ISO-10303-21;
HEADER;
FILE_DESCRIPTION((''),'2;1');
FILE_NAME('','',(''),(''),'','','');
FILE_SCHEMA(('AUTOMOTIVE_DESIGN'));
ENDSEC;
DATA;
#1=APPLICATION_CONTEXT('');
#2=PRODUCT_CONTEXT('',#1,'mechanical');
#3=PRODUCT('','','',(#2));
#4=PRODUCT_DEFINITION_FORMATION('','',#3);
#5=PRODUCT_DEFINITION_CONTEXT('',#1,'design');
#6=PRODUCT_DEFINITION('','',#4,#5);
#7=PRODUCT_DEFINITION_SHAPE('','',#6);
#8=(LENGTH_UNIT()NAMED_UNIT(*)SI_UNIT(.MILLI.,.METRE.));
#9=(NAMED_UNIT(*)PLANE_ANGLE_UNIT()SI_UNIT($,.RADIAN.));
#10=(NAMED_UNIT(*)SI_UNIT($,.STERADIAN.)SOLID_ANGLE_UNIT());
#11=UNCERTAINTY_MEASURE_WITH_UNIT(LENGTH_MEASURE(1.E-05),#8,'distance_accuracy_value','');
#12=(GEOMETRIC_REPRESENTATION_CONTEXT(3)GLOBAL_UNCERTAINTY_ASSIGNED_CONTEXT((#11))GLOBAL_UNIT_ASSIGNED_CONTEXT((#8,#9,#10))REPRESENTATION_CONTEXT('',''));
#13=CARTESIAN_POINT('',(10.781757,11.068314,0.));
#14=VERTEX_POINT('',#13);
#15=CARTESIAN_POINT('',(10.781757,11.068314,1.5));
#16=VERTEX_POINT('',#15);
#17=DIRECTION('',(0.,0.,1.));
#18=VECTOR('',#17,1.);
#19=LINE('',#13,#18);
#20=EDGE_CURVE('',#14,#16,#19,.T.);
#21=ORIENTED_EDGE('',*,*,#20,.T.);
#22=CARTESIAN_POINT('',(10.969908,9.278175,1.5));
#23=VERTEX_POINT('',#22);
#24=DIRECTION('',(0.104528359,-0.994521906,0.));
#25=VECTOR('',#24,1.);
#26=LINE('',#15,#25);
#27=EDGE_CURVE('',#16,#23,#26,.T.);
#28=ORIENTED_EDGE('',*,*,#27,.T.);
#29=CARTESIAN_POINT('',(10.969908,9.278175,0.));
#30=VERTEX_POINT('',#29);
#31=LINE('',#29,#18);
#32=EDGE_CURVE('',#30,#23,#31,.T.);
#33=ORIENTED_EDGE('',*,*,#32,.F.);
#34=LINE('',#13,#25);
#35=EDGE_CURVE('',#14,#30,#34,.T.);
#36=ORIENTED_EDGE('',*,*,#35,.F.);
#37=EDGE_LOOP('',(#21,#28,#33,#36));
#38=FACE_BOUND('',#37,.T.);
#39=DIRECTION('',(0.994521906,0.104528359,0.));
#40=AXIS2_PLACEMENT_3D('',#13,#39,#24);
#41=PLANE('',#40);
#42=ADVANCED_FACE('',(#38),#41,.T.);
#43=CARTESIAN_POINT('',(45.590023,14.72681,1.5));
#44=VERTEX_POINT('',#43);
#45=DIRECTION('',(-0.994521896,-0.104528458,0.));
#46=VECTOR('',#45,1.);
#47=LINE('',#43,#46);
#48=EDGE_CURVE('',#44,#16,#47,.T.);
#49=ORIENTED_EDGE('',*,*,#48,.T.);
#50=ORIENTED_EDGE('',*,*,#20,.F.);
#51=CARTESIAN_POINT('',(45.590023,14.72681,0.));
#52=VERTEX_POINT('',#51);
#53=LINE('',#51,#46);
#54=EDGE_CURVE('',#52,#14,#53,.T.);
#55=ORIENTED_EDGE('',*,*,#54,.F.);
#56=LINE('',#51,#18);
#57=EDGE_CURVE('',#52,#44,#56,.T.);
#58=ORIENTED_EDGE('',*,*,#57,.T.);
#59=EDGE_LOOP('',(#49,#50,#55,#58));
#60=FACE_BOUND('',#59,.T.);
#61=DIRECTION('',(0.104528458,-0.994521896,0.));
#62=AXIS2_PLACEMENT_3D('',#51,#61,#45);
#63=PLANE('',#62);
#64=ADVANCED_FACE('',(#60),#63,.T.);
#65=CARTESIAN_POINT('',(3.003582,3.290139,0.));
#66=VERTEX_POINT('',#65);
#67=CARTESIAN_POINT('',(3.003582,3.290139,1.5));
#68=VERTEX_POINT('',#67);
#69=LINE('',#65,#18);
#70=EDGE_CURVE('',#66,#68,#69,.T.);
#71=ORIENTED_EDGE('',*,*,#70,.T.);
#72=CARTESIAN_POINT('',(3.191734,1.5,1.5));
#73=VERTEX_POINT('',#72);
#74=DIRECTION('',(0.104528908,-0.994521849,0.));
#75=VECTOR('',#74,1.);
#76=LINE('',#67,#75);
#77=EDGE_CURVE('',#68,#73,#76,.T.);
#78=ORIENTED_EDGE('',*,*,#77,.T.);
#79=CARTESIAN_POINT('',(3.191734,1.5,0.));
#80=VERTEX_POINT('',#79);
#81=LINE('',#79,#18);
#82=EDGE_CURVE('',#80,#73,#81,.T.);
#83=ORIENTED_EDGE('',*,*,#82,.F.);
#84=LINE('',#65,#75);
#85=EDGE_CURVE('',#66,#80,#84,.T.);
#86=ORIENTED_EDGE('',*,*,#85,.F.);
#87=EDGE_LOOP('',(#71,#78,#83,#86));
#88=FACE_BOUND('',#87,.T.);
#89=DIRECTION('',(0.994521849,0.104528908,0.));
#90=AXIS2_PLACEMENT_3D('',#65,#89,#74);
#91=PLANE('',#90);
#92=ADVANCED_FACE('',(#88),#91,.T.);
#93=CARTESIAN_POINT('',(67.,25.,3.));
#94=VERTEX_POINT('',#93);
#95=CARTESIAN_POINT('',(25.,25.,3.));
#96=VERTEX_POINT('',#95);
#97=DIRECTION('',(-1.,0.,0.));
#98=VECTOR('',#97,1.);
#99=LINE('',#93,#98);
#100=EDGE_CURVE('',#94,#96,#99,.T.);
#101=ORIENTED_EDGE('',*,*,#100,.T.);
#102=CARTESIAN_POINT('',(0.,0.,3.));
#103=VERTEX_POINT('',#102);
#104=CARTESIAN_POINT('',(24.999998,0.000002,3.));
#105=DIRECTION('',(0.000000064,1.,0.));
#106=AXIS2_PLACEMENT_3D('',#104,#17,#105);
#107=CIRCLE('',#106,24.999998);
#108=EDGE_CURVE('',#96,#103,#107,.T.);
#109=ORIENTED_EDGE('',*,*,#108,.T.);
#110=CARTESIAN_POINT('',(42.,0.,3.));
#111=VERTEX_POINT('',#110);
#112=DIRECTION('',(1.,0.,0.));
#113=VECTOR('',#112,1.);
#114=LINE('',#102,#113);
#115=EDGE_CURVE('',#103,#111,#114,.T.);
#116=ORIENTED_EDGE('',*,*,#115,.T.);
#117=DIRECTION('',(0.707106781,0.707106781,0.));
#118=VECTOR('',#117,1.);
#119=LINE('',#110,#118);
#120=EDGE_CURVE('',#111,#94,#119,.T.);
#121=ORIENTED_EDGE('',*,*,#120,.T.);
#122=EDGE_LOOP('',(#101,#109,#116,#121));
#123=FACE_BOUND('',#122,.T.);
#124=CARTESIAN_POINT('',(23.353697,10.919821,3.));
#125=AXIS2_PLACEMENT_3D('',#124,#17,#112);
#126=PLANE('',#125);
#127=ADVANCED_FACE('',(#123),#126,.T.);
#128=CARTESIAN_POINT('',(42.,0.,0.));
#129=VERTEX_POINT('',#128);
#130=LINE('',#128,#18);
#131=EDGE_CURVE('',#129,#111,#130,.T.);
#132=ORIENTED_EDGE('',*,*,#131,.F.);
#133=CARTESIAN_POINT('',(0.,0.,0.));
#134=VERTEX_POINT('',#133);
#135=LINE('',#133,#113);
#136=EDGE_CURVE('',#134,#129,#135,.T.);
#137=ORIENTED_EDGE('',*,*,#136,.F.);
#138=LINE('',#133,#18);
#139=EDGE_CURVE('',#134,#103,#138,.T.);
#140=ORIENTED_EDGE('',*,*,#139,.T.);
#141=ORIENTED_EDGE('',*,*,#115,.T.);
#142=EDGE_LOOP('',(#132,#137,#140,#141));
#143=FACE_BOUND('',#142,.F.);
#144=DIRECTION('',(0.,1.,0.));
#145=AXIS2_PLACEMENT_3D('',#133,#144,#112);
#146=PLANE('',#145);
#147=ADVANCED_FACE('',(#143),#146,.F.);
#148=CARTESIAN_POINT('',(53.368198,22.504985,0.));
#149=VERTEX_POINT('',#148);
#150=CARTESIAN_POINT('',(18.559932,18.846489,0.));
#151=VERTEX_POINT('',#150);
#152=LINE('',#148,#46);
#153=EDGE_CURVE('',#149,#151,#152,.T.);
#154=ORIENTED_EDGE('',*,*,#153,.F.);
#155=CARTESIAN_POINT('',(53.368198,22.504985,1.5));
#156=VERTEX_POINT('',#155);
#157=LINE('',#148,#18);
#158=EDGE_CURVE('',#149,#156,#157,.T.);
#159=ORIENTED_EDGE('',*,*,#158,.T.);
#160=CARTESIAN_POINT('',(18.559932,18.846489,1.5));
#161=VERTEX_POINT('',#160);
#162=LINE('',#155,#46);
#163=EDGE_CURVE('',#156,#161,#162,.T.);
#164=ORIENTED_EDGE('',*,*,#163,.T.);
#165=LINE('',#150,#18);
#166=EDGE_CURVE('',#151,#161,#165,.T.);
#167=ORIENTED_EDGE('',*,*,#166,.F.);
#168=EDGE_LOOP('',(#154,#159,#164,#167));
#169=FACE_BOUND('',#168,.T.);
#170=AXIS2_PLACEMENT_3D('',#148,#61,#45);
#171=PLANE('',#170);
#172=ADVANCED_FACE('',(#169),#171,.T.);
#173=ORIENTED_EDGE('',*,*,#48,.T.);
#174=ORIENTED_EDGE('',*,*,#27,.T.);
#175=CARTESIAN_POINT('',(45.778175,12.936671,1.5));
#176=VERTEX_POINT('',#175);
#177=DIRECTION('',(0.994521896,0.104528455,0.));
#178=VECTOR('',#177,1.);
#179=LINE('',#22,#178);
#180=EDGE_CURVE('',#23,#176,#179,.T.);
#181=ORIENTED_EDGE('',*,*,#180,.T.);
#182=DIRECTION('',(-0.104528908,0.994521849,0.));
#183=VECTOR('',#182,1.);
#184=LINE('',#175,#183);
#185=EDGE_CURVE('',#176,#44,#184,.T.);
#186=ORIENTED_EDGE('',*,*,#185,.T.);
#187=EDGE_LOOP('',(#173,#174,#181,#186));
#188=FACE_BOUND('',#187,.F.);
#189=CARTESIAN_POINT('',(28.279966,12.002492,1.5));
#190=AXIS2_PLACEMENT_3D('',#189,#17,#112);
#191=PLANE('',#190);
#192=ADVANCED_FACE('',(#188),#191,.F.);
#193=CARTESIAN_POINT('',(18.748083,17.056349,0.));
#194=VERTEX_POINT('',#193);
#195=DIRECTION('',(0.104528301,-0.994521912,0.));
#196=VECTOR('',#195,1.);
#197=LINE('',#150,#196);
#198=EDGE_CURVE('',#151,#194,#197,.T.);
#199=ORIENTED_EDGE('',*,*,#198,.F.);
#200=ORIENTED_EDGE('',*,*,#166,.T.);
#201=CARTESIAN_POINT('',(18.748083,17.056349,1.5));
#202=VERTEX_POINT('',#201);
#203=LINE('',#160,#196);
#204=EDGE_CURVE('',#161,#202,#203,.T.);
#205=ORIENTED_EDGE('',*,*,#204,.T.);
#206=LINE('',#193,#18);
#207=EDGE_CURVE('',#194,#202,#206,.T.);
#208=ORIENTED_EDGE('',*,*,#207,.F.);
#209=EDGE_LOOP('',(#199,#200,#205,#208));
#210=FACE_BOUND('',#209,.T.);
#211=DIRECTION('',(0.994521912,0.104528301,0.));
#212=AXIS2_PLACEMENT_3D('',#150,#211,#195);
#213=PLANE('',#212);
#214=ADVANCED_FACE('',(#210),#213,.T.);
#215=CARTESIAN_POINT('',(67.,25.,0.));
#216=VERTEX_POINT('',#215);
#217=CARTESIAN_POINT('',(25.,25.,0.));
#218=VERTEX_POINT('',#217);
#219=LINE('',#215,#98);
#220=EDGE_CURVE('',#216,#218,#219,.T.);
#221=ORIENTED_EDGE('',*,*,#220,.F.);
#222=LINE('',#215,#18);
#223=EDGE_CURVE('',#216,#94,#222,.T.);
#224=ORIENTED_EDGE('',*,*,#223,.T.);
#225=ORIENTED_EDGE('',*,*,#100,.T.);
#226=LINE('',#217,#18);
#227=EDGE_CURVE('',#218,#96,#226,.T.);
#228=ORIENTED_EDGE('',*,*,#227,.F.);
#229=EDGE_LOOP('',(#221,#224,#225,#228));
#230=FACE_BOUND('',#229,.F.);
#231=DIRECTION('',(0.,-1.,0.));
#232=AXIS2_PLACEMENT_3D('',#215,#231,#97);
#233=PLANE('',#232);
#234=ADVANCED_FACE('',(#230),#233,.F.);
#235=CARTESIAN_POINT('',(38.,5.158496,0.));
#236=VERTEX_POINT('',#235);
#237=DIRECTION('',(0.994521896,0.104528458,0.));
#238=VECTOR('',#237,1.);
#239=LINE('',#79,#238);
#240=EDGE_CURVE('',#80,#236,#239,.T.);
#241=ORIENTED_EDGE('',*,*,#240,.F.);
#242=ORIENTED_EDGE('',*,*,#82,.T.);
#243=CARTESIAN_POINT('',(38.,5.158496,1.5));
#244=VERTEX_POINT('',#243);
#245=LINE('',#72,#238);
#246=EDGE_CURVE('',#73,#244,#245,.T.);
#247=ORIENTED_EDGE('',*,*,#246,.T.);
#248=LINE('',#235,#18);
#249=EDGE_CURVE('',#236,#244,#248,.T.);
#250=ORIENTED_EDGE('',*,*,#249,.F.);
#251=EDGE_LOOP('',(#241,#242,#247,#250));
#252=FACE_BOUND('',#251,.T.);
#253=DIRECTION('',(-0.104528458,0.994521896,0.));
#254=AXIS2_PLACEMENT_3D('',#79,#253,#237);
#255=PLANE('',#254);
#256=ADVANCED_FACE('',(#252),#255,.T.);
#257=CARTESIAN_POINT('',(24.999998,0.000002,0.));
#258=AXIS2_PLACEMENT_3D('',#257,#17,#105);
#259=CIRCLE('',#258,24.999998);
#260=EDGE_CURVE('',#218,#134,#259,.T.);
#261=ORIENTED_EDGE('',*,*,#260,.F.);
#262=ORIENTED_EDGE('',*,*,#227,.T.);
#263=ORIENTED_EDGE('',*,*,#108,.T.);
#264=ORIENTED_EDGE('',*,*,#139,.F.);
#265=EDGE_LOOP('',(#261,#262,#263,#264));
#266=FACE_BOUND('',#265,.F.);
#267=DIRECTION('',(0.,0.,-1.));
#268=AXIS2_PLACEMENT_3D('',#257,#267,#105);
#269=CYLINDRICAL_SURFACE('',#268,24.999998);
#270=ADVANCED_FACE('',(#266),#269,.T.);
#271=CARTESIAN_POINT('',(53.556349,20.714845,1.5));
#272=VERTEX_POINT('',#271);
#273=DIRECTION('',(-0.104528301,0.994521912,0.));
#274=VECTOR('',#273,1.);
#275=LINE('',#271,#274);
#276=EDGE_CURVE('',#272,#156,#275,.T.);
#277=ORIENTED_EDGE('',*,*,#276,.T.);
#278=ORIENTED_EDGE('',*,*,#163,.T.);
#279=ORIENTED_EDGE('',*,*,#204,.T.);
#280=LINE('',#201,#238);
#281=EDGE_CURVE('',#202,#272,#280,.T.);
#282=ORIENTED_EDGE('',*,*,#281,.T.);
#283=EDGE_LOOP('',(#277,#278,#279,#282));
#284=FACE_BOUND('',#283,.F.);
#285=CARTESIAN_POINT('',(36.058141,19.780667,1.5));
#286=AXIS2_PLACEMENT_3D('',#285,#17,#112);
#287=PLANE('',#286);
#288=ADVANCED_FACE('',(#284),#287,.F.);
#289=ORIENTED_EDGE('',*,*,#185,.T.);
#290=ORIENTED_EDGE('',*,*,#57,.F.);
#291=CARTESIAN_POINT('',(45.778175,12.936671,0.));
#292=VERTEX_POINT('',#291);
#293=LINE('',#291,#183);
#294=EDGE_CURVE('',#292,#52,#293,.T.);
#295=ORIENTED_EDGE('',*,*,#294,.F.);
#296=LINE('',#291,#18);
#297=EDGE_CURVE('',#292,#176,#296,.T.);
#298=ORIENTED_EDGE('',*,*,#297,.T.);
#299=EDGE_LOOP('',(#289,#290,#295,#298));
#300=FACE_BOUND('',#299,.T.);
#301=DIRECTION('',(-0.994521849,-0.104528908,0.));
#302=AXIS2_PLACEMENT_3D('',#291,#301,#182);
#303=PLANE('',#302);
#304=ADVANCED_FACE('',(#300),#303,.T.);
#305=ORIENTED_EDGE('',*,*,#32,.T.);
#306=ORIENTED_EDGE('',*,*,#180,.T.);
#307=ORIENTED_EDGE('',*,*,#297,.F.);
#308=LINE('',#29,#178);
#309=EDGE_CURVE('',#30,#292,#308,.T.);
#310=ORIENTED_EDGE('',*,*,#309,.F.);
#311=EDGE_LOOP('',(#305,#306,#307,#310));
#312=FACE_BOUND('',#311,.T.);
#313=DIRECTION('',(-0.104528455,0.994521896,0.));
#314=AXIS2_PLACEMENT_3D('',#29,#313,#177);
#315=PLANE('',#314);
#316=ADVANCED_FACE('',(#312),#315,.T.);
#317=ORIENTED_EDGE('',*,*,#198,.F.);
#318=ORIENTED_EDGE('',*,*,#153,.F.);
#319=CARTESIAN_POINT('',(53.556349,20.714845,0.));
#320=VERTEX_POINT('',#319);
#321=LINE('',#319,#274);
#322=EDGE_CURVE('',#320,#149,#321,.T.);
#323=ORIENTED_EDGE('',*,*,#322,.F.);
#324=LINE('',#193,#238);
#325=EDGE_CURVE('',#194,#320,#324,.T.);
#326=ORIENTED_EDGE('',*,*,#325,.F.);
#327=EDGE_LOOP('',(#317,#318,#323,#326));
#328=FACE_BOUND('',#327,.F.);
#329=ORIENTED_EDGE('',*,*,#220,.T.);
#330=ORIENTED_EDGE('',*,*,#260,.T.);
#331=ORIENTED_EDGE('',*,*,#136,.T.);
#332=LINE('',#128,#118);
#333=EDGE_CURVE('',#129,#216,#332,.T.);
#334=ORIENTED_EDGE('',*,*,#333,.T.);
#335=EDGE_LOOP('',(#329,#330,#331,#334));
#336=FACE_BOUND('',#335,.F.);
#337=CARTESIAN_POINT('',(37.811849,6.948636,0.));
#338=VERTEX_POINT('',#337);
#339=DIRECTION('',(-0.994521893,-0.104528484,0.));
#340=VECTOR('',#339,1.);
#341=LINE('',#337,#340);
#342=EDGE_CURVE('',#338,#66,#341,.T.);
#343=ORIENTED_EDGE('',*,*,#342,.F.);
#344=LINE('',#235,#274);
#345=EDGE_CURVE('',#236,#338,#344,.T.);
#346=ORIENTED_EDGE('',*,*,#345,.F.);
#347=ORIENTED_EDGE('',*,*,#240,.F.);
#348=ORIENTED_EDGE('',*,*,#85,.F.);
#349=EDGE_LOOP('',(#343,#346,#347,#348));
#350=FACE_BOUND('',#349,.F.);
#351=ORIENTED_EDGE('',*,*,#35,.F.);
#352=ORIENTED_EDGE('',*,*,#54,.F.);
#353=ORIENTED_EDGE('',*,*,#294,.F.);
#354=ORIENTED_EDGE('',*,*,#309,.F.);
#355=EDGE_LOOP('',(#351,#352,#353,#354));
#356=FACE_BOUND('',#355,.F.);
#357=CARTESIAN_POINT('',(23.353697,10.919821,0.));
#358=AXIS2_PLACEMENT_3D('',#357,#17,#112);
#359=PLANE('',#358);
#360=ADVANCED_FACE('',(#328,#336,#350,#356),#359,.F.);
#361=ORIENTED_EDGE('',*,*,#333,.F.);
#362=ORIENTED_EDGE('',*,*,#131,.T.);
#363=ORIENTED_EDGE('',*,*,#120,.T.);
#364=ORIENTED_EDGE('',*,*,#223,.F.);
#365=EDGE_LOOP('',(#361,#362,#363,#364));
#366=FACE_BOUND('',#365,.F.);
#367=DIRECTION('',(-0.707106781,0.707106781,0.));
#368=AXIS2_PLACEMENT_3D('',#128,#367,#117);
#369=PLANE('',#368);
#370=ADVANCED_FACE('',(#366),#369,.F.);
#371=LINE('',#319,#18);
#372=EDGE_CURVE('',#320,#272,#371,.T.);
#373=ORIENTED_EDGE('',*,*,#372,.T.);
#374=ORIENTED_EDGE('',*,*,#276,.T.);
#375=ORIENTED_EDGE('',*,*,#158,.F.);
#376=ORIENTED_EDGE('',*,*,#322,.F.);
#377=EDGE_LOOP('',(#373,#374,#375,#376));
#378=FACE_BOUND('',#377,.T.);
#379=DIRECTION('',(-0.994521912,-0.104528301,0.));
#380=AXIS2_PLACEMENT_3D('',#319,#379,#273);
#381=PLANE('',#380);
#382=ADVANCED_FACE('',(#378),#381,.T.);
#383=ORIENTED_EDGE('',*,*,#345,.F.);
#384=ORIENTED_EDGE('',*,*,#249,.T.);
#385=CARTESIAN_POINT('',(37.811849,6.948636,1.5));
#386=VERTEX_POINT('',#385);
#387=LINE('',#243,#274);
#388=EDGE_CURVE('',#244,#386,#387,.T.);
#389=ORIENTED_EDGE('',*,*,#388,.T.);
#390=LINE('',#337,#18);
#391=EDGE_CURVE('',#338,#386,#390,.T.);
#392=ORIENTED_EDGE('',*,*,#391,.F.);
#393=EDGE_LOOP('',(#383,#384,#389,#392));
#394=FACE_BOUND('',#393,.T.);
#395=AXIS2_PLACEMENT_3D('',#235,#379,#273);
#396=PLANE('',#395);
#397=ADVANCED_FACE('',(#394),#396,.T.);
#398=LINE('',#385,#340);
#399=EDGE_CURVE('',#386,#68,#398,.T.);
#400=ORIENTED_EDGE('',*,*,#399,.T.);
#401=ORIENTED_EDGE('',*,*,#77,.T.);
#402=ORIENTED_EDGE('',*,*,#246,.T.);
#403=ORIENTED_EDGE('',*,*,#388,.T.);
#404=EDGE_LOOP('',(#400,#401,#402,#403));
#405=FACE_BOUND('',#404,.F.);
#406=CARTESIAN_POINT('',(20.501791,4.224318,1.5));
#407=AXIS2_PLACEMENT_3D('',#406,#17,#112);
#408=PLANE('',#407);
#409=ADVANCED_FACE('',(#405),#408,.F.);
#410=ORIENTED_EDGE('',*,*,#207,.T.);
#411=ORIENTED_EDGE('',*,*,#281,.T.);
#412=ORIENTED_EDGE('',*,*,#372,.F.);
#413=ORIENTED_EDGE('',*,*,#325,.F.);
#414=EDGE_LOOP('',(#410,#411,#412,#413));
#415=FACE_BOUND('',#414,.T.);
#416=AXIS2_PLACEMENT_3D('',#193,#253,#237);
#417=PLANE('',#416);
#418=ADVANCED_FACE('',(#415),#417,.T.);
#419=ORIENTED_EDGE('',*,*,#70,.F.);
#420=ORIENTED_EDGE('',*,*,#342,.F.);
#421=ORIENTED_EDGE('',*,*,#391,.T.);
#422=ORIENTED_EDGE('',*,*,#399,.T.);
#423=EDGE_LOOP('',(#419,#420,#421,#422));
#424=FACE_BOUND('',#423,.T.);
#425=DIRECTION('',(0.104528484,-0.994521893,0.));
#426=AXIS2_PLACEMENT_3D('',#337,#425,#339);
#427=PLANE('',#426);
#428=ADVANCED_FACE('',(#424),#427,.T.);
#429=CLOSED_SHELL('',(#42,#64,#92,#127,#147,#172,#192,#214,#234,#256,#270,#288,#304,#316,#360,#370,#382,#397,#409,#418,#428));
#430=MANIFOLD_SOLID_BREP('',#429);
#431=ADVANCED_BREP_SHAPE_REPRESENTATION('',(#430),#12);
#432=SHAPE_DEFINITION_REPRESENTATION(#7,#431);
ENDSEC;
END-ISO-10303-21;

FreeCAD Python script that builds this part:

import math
import FreeCAD as App
import Part
import Sketcher
from FreeCAD import Vector
Q = App.Units.Quantity


def add_polygon(sketch, points):
    """Adds a closed chain of lines whose ends are joined by coincident constraints."""
    first, n = sketch.GeometryCount, len(points)
    for a, b in zip(points, points[1:] + points[:1]):
        sketch.addGeometry(Part.LineSegment(App.Vector(*a, 0), App.Vector(*b, 0)), False)
    for i in range(n):
        sketch.addConstraint(Sketcher.Constraint("Coincident", first + i, 2, first + (i + 1) % n, 1))

doc = App.newDocument("Part")
params = doc.addObject("Spreadsheet::Sheet", "Params")
for row, (alias, value) in enumerate([
    ("sketch1_radius", "24.999998 mm"),
    ("sketch1_width", "42 mm"),
    ("pad1_length", "3 mm"),
    ("sketch2_length", "35 mm"),
    ("sketch2_length2", "1.8 mm"),
    ("pocket1_length", "1.5 mm"),
], start=1):
    params.set(f"A{row}", alias)
    params.set(f"B{row}", "=" + value)
    params.setAlias(f"B{row}", alias)

body = doc.addObject("PartDesign::Body", "Body")

# Sketch on XY plane
sketch1 = body.newObject("Sketcher::SketchObject", "Sketch")
sketch1.AttachmentSupport = (doc.getObject("XY_Plane"), [""])
sketch1.MapMode = "FlatFace"
sketch1.addGeometry([
    Part.ArcOfCircle(Part.Circle(Vector(25, 0, 0), Vector(0, 0, 1), 25), math.radians(90), math.radians(180)),
    Part.LineSegment(Vector(0, 0, 0), Vector(42, 0, 0)),
    Part.LineSegment(Vector(42, 0, 0), Vector(67, 25, 0)),
    Part.LineSegment(Vector(67, 25, 0), Vector(25, 25, 0)),
], False)
sketch1.addConstraint([
    Sketcher.Constraint("Coincident", 0, 2, 1, 1),
    Sketcher.Constraint("Coincident", 1, 2, 2, 1),
    Sketcher.Constraint("Coincident", 2, 2, 3, 1),
    Sketcher.Constraint("Tangent", 3, 2, 0, 1),
    Sketcher.Constraint("Horizontal", 1),
    Sketcher.Constraint("Horizontal", 3),
    Sketcher.Constraint("Coincident", 0, 2, -1, 1),
    Sketcher.Constraint("PointOnObject", 0, 3, -1),
    Sketcher.Constraint("Equal", 1, 3),
    Sketcher.Constraint("Radius", 0, 24.999998),
    Sketcher.Constraint("DistanceX", 1, 1, 1, 2, 42.0),
])
sketch1.setExpression("Constraints[9]", "Params.sketch1_radius")
sketch1.setExpression("Constraints[10]", "Params.sketch1_width")
pad1 = body.newObject("PartDesign::Pad", "Pad")
pad1.Profile = sketch1
pad1.setExpression("Length", "Params.pad1_length")

# Sketch on XY plane
sketch2 = body.newObject("Sketcher::SketchObject", "Sketch001")
sketch2.AttachmentSupport = (doc.getObject("XY_Plane"), [""])
sketch2.MapMode = "FlatFace"
add_polygon(sketch2, [(3, 3.3), (3.2, 1.5), (38, 5.2), (37.8, 6.9)])  # lines 0-3
add_polygon(sketch2, [(10.8, 11.1), (11, 9.3), (45.8, 12.9), (45.6, 14.7)])  # lines 4-7
add_polygon(sketch2, [(18.6, 18.8), (18.7, 17.1), (53.6, 20.7), (53.4, 22.5)])  # lines 8-11
sketch2.addConstraint([
    Sketcher.Constraint("Perpendicular", 0, 1),
    Sketcher.Constraint("Perpendicular", 1, 2),
    Sketcher.Constraint("Perpendicular", 2, 3),
    Sketcher.Constraint("Perpendicular", 3, 4),
    Sketcher.Constraint("Perpendicular", 4, 5),
    Sketcher.Constraint("Perpendicular", 5, 6),
    Sketcher.Constraint("Perpendicular", 6, 7),
    Sketcher.Constraint("Perpendicular", 7, 8),
    Sketcher.Constraint("Perpendicular", 8, 9),
    Sketcher.Constraint("Perpendicular", 9, 10),
    Sketcher.Constraint("Perpendicular", 10, 11),
    Sketcher.Constraint("Equal", 2, 4),
    Sketcher.Constraint("Equal", 3, 5),
    Sketcher.Constraint("Equal", 6, 8),
    Sketcher.Constraint("Equal", 7, 9),
    Sketcher.Constraint("Angle", 1, Q("6 deg")),
    Sketcher.Constraint("Distance", 1, 35.0),
    Sketcher.Constraint("DistanceX", -1, 1, 1, 2, 38.0),
    Sketcher.Constraint("Distance", 0, 1.8),
    Sketcher.Constraint("DistanceY", -1, 1, 0, 2, 1.5),
    Sketcher.Constraint("DistanceX", 3, 2, 8, 2, 15.744501),
    Sketcher.Constraint("DistanceY", -1, 1, 5, 2, 12.936671),
    Sketcher.Constraint("DistanceY", -1, 1, 8, 2, 17.056349),
    Sketcher.Constraint("DistanceX", 4, 2, 2, 2, 26.841941),
])
sketch2.setExpression("Constraints[28]", "Params.sketch2_length")
sketch2.setExpression("Constraints[30]", "Params.sketch2_length2")
pocket1 = body.newObject("PartDesign::Pocket", "Pocket")
pocket1.Profile = sketch2
pocket1.setExpression("Length", "Params.pocket1_length")
pocket1.Reversed = True

doc.recompute()
